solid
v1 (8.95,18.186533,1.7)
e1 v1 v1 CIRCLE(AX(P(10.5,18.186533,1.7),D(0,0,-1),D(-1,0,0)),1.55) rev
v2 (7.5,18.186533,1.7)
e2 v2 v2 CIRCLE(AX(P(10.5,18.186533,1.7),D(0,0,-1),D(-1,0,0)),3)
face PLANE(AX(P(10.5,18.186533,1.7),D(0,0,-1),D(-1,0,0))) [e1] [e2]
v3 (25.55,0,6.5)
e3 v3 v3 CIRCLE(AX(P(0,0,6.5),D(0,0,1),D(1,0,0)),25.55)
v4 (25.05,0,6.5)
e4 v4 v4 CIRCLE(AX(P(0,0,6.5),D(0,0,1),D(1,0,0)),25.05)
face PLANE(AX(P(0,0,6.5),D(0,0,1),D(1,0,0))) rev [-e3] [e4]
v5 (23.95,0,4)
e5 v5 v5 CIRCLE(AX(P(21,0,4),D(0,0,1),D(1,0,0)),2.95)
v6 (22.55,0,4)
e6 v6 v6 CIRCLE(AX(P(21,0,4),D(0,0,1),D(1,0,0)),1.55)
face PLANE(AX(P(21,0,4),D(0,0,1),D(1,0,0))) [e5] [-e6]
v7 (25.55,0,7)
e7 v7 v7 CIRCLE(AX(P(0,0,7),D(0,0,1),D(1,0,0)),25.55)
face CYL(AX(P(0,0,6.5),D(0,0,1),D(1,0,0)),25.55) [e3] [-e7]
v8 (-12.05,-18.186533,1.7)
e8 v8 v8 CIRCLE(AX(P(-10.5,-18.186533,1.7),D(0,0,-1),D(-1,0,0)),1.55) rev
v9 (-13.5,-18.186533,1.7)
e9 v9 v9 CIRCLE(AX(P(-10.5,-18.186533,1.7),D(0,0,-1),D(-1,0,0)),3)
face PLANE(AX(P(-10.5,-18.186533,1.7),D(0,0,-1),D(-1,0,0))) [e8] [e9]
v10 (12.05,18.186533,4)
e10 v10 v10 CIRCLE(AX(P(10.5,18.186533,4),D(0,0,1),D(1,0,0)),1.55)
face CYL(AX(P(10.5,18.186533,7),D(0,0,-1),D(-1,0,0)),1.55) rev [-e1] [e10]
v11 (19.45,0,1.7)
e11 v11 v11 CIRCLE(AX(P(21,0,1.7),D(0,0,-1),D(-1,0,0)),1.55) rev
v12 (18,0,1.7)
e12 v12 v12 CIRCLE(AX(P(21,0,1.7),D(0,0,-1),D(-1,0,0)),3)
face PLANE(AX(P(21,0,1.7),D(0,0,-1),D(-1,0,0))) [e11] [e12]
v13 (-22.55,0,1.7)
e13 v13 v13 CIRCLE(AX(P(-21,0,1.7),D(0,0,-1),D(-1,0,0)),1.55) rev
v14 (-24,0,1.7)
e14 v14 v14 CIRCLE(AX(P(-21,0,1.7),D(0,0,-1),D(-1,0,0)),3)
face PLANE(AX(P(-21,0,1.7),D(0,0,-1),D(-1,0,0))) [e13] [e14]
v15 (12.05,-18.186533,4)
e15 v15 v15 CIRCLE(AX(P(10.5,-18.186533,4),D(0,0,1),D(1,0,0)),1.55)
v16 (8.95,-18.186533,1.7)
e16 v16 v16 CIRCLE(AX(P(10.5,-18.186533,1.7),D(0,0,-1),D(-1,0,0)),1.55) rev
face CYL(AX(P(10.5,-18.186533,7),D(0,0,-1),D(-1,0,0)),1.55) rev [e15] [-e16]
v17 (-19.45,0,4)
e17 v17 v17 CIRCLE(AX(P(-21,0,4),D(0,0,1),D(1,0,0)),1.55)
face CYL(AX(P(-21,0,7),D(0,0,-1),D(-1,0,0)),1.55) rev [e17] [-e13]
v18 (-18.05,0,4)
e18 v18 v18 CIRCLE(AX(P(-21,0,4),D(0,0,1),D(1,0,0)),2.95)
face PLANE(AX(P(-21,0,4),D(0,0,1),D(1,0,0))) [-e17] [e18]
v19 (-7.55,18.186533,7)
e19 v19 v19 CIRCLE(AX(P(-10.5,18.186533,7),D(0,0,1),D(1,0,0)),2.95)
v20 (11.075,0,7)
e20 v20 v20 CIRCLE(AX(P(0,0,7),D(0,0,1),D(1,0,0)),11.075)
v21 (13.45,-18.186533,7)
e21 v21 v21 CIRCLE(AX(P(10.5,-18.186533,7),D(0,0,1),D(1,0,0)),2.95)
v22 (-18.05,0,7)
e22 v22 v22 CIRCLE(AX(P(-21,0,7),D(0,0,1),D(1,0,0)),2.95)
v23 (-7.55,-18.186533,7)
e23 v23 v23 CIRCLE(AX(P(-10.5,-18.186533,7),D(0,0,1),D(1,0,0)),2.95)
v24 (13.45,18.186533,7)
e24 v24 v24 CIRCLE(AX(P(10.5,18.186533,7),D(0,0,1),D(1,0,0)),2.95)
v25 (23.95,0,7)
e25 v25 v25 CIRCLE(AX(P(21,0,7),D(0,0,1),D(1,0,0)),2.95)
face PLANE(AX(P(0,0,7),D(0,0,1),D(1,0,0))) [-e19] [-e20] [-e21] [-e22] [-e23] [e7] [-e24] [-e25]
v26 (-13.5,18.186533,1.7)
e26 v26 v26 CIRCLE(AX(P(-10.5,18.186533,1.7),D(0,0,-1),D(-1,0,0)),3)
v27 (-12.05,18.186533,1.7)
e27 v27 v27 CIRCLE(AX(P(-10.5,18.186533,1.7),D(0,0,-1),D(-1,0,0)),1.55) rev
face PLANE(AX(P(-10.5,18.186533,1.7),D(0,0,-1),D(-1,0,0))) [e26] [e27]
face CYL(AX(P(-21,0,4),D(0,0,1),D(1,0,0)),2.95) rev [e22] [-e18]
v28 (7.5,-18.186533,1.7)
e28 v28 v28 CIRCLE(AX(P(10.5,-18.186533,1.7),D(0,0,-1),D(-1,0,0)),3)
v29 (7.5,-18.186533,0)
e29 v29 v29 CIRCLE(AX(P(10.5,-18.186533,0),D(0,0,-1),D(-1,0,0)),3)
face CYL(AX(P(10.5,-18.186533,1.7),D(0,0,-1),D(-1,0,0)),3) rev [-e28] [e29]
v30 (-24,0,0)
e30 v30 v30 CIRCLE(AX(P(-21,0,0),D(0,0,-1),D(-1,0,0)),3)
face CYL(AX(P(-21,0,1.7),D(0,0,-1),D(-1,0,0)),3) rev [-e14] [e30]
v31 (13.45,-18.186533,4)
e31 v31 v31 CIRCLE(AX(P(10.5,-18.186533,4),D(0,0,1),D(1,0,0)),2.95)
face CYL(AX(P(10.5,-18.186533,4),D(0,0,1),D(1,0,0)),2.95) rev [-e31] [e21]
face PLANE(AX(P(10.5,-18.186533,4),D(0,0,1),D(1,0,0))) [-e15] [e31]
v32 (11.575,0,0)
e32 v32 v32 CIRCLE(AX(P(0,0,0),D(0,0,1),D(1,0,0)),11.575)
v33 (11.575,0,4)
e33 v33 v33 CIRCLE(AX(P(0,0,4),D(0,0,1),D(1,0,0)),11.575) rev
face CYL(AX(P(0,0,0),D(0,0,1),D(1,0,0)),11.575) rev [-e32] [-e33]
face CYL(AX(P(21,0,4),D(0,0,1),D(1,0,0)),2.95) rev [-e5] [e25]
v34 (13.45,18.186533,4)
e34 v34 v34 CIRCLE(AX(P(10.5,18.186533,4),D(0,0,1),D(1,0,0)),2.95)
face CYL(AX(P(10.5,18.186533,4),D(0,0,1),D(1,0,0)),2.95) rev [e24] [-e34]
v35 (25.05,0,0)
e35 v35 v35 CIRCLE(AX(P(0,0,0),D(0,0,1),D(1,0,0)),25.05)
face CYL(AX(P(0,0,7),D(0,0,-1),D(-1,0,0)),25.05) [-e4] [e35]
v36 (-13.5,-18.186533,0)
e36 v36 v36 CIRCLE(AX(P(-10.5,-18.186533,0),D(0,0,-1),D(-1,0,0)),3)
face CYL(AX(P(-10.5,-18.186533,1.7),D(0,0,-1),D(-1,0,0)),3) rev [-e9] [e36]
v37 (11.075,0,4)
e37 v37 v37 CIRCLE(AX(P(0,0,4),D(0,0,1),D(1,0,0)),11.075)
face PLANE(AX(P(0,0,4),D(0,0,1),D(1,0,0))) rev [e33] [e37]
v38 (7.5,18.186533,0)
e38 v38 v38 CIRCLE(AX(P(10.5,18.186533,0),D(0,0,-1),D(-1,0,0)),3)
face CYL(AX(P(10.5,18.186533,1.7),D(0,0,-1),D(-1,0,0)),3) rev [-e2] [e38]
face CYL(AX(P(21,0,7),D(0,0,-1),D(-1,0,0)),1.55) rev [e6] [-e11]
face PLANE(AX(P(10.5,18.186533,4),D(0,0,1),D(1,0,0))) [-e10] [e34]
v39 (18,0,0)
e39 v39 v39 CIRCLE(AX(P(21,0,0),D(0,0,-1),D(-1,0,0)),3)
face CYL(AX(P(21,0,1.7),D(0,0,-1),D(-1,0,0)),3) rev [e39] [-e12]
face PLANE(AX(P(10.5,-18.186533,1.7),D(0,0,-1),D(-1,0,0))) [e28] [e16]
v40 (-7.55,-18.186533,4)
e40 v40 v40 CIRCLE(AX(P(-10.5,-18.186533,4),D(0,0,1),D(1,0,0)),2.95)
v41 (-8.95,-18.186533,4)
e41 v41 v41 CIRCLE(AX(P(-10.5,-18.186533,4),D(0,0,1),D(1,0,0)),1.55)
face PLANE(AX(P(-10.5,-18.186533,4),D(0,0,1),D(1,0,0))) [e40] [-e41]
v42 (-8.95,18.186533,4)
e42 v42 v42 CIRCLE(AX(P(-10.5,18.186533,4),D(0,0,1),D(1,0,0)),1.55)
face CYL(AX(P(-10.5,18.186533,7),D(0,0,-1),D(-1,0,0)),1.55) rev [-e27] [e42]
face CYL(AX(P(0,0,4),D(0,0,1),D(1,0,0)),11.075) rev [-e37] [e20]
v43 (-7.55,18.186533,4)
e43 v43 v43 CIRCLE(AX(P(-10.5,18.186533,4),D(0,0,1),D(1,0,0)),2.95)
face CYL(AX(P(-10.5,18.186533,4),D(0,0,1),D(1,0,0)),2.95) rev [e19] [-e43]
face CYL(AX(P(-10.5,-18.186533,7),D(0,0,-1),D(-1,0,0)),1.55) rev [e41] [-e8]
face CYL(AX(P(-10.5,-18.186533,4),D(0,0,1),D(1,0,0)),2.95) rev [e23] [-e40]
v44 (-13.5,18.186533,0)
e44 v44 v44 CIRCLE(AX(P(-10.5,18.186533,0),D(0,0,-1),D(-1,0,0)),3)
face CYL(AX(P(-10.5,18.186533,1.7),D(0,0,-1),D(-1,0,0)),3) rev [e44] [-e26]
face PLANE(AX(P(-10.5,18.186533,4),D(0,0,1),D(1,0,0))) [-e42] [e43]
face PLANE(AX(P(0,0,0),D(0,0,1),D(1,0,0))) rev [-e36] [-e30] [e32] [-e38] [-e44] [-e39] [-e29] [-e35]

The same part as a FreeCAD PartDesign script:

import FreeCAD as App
import Part
import Sketcher

doc = App.newDocument("Part")
params = doc.addObject("Spreadsheet::Sheet", "Params")
for row, (alias, value) in enumerate([
    ("sketch1_diameter", "50.1 mm"),
    ("pad1_length", "7 mm"),
    ("sketch2_diameter", "5.9 mm"),
    ("pocket1_length", "3 mm"),
    ("sketch3_diameter", "51.1 mm"),
    ("sketch3_diameter2", "50.1 mm"),
    ("pad2_length", "0.5 mm"),
    ("sketch4_diameter", "3.1 mm"),
    ("sketch5_diameter", "6 mm"),
    ("pocket3_length", "1.7 mm"),
    ("sketch6_diameter", "23.15 mm"),
    ("sketch7_diameter", "23.15 mm"),
    ("sketch7_diameter2", "22.15 mm"),
    ("pad3_length", "3 mm"),
], start=1):
    params.set(f"A{row}", alias)
    params.set(f"B{row}", "=" + value)
    params.setAlias(f"B{row}", alias)

body = doc.addObject("PartDesign::Body", "Body")

# Sketch on XY plane
sketch1 = doc.addObject("Sketcher::SketchObject", "Sketch")
body.addObject(sketch1)
sketch1.AttachmentSupport = (doc.XY_Plane, [""])
sketch1.MapMode = "FlatFace"
sketch1.addGeometry(Part.Circle(App.Vector(0, 0, 0), App.Vector(0, 0, 1), 25), False)
sketch1.addConstraint([
    Sketcher.Constraint("Coincident", 0, 3, -1, 1),
    Sketcher.Constraint("Diameter", 0, 50.1),
])
sketch1.setExpression("Constraints[1]", "Params.sketch1_diameter")
pad1 = doc.addObject("PartDesign::Pad", "Pad")
body.addObject(pad1)
pad1.Profile = sketch1
pad1.setExpression("Length", "Params.pad1_length")

# Sketch on XY plane
sketch2 = doc.addObject("Sketcher::SketchObject", "Sketch001")
body.addObject(sketch2)
sketch2.AttachmentSupport = (doc.XY_Plane, [""])
sketch2.MapMode = "FlatFace"
sketch2.AttachmentOffset = App.Placement(App.Vector(0, 0, 7), App.Rotation())
sketch2.addGeometry([
    Part.Circle(App.Vector(-21, 0, 0), App.Vector(0, 0, 1), 3),  # 0
    Part.Circle(App.Vector(-10.5, 18.2, 0), App.Vector(0, 0, 1), 3),  # 1
    Part.Circle(App.Vector(10.5, 18.2, 0), App.Vector(0, 0, 1), 3),  # 2
    Part.Circle(App.Vector(21, 0, 0), App.Vector(0, 0, 1), 3),  # 3
    Part.Circle(App.Vector(10.5, -18.2, 0), App.Vector(0, 0, 1), 3),  # 4
    Part.Circle(App.Vector(-10.5, -18.2, 0), App.Vector(0, 0, 1), 3),  # 5
], False)
sketch2.addConstraint([
    Sketcher.Constraint("Equal", 0, 1),
    Sketcher.Constraint("Equal", 1, 2),
    Sketcher.Constraint("Equal", 2, 3),
    Sketcher.Constraint("Equal", 3, 4),
    Sketcher.Constraint("Equal", 4, 5),
    Sketcher.Constraint("Symmetric", 0, 3, 3, 3, -1, 1),
    Sketcher.Constraint("Symmetric", 1, 3, 4, 3, -1, 1),
    Sketcher.Constraint("Symmetric", 2, 3, 5, 3, -1, 1),
    Sketcher.Constraint("Symmetric", 1, 3, 2, 3, -2),
    Sketcher.Constraint("PointOnObject", 0, 3, -1),
    Sketcher.Constraint("Diameter", 0, 5.9),
    Sketcher.Constraint("DistanceX", 0, 3, -1, 1, 21.0),
    Sketcher.Constraint("DistanceX", 1, 3, 2, 3, 21.0),
    Sketcher.Constraint("DistanceY", -1, 1, 1, 3, 18.186533),
])
sketch2.setExpression("Constraints[10]", "Params.sketch2_diameter")
pocket1 = doc.addObject("PartDesign::Pocket", "Pocket")
body.addObject(pocket1)
pocket1.Profile = sketch2
pocket1.setExpression("Length", "Params.pocket1_length")

# Sketch on XY plane
sketch3 = doc.addObject("Sketcher::SketchObject", "Sketch002")
body.addObject(sketch3)
sketch3.AttachmentSupport = (doc.XY_Plane, [""])
sketch3.MapMode = "FlatFace"
sketch3.AttachmentOffset = App.Placement(App.Vector(0, 0, 6.5), App.Rotation())
sketch3.addGeometry([
    Part.Circle(App.Vector(0, 0, 0), App.Vector(0, 0, 1), 26),
    Part.Circle(App.Vector(0, 0, 0), App.Vector(0, 0, 1), 25),
], False)
sketch3.addConstraint([
    Sketcher.Constraint("Coincident", 0, 3, -1, 1),
    Sketcher.Constraint("Coincident", 1, 3, -1, 1),
    Sketcher.Constraint("Diameter", 0, 51.1),
    Sketcher.Constraint("Diameter", 1, 50.1),
])
sketch3.setExpression("Constraints[2]", "Params.sketch3_diameter")
sketch3.setExpression("Constraints[3]", "Params.sketch3_diameter2")
pad2 = doc.addObject("PartDesign::Pad", "Pad001")
body.addObject(pad2)
pad2.Profile = sketch3
pad2.setExpression("Length", "Params.pad2_length")

# Sketch on XY plane
sketch4 = doc.addObject("Sketcher::SketchObject", "Sketch003")
body.addObject(sketch4)
sketch4.AttachmentSupport = (doc.XY_Plane, [""])
sketch4.MapMode = "FlatFace"
sketch4.addGeometry([
    Part.Circle(App.Vector(21, 0, 0), App.Vector(0, 0, 1), 1.6),  # 0
    Part.Circle(App.Vector(10.5, 18.2, 0), App.Vector(0, 0, 1), 1.6),  # 1
    Part.Circle(App.Vector(-10.5, 18.2, 0), App.Vector(0, 0, 1), 1.6),  # 2
    Part.Circle(App.Vector(-21, 0, 0), App.Vector(0, 0, 1), 1.6),  # 3
    Part.Circle(App.Vector(-10.5, -18.2, 0), App.Vector(0, 0, 1), 1.6),  # 4
    Part.Circle(App.Vector(10.5, -18.2, 0), App.Vector(0, 0, 1), 1.6),  # 5
], False)
sketch4.addConstraint([
    Sketcher.Constraint("Equal", 0, 1),
    Sketcher.Constraint("Equal", 1, 2),
    Sketcher.Constraint("Equal", 2, 3),
    Sketcher.Constraint("Equal", 3, 4),
    Sketcher.Constraint("Equal", 4, 5),
    Sketcher.Constraint("Symmetric", 0, 3, 3, 3, -1, 1),
    Sketcher.Constraint("Symmetric", 1, 3, 4, 3, -1, 1),
    Sketcher.Constraint("Symmetric", 2, 3, 5, 3, -1, 1),
    Sketcher.Constraint("Symmetric", 1, 3, 2, 3, -2),
    Sketcher.Constraint("PointOnObject", 0, 3, -1),
    Sketcher.Constraint("Diameter", 0, 3.1),
    Sketcher.Constraint("DistanceX", -1, 1, 0, 3, 21.0),
    Sketcher.Constraint("DistanceX", 2, 3, 1, 3, 21.0),
    Sketcher.Constraint("DistanceY", -1, 1, 1, 3, 18.186533),
])
sketch4.setExpression("Constraints[10]", "Params.sketch4_diameter")
pocket2 = doc.addObject("PartDesign::Pocket", "Pocket001")
body.addObject(pocket2)
pocket2.Profile = sketch4
pocket2.Type = "ThroughAll"
pocket2.Reversed = True

# Sketch on XY plane
sketch5 = doc.addObject("Sketcher::SketchObject", "Sketch004")
body.addObject(sketch5)
sketch5.AttachmentSupport = (doc.XY_Plane, [""])
sketch5.MapMode = "FlatFace"
sketch5.addGeometry([
    Part.Circle(App.Vector(21, 0, 0), App.Vector(0, 0, 1), 3),  # 0
    Part.Circle(App.Vector(10.5, 18.2, 0), App.Vector(0, 0, 1), 3),  # 1
    Part.Circle(App.Vector(-10.5, 18.2, 0), App.Vector(0, 0, 1), 3),  # 2
    Part.Circle(App.Vector(-21, 0, 0), App.Vector(0, 0, 1), 3),  # 3
    Part.Circle(App.Vector(-10.5, -18.2, 0), App.Vector(0, 0, 1), 3),  # 4
    Part.Circle(App.Vector(10.5, -18.2, 0), App.Vector(0, 0, 1), 3),  # 5
], False)
sketch5.addConstraint([
    Sketcher.Constraint("Equal", 0, 1),
    Sketcher.Constraint("Equal", 1, 2),
    Sketcher.Constraint("Equal", 2, 3),
    Sketcher.Constraint("Equal", 3, 4),
    Sketcher.Constraint("Equal", 4, 5),
    Sketcher.Constraint("Symmetric", 0, 3, 3, 3, -1, 1),
    Sketcher.Constraint("Symmetric", 1, 3, 4, 3, -1, 1),
    Sketcher.Constraint("Symmetric", 2, 3, 5, 3, -1, 1),
    Sketcher.Constraint("Symmetric", 1, 3, 2, 3, -2),
    Sketcher.Constraint("PointOnObject", 0, 3, -1),
    Sketcher.Constraint("Diameter", 0, 6.0),
    Sketcher.Constraint("DistanceX", -1, 1, 0, 3, 21.0),
    Sketcher.Constraint("DistanceX", 2, 3, 1, 3, 21.0),
    Sketcher.Constraint("DistanceY", -1, 1, 1, 3, 18.186533),
])
sketch5.setExpression("Constraints[10]", "Params.sketch5_diameter")
pocket3 = doc.addObject("PartDesign::Pocket", "Pocket002")
body.addObject(pocket3)
pocket3.Profile = sketch5
pocket3.setExpression("Length", "Params.pocket3_length")
pocket3.Reversed = True

# Sketch on XY plane
sketch6 = doc.addObject("Sketcher::SketchObject", "Sketch005")
body.addObject(sketch6)
sketch6.AttachmentSupport = (doc.XY_Plane, [""])
sketch6.MapMode = "FlatFace"
sketch6.AttachmentOffset = App.Placement(App.Vector(0, 0, 7), App.Rotation())
sketch6.addGeometry(Part.Circle(App.Vector(0, 0, 0), App.Vector(0, 0, 1), 12), False)
sketch6.addConstraint([
    Sketcher.Constraint("Coincident", 0, 3, -1, 1),
    Sketcher.Constraint("Diameter", 0, 23.15),
])
sketch6.setExpression("Constraints[1]", "Params.sketch6_diameter")
pocket4 = doc.addObject("PartDesign::Pocket", "Pocket003")
body.addObject(pocket4)
pocket4.Profile = sketch6
pocket4.Type = "ThroughAll"

# Sketch on XY plane
sketch7 = doc.addObject("Sketcher::SketchObject", "Sketch006")
body.addObject(sketch7)
sketch7.AttachmentSupport = (doc.XY_Plane, [""])
sketch7.MapMode = "FlatFace"
sketch7.AttachmentOffset = App.Placement(App.Vector(0, 0, 7), App.Rotation())
sketch7.addGeometry([
    Part.Circle(App.Vector(0, 0, 0), App.Vector(0, 0, 1), 12),
    Part.Circle(App.Vector(0, 0, 0), App.Vector(0, 0, 1), 11),
], False)
sketch7.addConstraint([
    Sketcher.Constraint("Coincident", 0, 3, -1, 1),
    Sketcher.Constraint("Coincident", 1, 3, -1, 1),
    Sketcher.Constraint("Diameter", 0, 23.15),
    Sketcher.Constraint("Diameter", 1, 22.15),
])
sketch7.setExpression("Constraints[2]", "Params.sketch7_diameter")
sketch7.setExpression("Constraints[3]", "Params.sketch7_diameter2")
pad3 = doc.addObject("PartDesign::Pad", "Pad002")
body.addObject(pad3)
pad3.Profile = sketch7
pad3.setExpression("Length", "Params.pad3_length")
pad3.Reversed = True

doc.recompute()
